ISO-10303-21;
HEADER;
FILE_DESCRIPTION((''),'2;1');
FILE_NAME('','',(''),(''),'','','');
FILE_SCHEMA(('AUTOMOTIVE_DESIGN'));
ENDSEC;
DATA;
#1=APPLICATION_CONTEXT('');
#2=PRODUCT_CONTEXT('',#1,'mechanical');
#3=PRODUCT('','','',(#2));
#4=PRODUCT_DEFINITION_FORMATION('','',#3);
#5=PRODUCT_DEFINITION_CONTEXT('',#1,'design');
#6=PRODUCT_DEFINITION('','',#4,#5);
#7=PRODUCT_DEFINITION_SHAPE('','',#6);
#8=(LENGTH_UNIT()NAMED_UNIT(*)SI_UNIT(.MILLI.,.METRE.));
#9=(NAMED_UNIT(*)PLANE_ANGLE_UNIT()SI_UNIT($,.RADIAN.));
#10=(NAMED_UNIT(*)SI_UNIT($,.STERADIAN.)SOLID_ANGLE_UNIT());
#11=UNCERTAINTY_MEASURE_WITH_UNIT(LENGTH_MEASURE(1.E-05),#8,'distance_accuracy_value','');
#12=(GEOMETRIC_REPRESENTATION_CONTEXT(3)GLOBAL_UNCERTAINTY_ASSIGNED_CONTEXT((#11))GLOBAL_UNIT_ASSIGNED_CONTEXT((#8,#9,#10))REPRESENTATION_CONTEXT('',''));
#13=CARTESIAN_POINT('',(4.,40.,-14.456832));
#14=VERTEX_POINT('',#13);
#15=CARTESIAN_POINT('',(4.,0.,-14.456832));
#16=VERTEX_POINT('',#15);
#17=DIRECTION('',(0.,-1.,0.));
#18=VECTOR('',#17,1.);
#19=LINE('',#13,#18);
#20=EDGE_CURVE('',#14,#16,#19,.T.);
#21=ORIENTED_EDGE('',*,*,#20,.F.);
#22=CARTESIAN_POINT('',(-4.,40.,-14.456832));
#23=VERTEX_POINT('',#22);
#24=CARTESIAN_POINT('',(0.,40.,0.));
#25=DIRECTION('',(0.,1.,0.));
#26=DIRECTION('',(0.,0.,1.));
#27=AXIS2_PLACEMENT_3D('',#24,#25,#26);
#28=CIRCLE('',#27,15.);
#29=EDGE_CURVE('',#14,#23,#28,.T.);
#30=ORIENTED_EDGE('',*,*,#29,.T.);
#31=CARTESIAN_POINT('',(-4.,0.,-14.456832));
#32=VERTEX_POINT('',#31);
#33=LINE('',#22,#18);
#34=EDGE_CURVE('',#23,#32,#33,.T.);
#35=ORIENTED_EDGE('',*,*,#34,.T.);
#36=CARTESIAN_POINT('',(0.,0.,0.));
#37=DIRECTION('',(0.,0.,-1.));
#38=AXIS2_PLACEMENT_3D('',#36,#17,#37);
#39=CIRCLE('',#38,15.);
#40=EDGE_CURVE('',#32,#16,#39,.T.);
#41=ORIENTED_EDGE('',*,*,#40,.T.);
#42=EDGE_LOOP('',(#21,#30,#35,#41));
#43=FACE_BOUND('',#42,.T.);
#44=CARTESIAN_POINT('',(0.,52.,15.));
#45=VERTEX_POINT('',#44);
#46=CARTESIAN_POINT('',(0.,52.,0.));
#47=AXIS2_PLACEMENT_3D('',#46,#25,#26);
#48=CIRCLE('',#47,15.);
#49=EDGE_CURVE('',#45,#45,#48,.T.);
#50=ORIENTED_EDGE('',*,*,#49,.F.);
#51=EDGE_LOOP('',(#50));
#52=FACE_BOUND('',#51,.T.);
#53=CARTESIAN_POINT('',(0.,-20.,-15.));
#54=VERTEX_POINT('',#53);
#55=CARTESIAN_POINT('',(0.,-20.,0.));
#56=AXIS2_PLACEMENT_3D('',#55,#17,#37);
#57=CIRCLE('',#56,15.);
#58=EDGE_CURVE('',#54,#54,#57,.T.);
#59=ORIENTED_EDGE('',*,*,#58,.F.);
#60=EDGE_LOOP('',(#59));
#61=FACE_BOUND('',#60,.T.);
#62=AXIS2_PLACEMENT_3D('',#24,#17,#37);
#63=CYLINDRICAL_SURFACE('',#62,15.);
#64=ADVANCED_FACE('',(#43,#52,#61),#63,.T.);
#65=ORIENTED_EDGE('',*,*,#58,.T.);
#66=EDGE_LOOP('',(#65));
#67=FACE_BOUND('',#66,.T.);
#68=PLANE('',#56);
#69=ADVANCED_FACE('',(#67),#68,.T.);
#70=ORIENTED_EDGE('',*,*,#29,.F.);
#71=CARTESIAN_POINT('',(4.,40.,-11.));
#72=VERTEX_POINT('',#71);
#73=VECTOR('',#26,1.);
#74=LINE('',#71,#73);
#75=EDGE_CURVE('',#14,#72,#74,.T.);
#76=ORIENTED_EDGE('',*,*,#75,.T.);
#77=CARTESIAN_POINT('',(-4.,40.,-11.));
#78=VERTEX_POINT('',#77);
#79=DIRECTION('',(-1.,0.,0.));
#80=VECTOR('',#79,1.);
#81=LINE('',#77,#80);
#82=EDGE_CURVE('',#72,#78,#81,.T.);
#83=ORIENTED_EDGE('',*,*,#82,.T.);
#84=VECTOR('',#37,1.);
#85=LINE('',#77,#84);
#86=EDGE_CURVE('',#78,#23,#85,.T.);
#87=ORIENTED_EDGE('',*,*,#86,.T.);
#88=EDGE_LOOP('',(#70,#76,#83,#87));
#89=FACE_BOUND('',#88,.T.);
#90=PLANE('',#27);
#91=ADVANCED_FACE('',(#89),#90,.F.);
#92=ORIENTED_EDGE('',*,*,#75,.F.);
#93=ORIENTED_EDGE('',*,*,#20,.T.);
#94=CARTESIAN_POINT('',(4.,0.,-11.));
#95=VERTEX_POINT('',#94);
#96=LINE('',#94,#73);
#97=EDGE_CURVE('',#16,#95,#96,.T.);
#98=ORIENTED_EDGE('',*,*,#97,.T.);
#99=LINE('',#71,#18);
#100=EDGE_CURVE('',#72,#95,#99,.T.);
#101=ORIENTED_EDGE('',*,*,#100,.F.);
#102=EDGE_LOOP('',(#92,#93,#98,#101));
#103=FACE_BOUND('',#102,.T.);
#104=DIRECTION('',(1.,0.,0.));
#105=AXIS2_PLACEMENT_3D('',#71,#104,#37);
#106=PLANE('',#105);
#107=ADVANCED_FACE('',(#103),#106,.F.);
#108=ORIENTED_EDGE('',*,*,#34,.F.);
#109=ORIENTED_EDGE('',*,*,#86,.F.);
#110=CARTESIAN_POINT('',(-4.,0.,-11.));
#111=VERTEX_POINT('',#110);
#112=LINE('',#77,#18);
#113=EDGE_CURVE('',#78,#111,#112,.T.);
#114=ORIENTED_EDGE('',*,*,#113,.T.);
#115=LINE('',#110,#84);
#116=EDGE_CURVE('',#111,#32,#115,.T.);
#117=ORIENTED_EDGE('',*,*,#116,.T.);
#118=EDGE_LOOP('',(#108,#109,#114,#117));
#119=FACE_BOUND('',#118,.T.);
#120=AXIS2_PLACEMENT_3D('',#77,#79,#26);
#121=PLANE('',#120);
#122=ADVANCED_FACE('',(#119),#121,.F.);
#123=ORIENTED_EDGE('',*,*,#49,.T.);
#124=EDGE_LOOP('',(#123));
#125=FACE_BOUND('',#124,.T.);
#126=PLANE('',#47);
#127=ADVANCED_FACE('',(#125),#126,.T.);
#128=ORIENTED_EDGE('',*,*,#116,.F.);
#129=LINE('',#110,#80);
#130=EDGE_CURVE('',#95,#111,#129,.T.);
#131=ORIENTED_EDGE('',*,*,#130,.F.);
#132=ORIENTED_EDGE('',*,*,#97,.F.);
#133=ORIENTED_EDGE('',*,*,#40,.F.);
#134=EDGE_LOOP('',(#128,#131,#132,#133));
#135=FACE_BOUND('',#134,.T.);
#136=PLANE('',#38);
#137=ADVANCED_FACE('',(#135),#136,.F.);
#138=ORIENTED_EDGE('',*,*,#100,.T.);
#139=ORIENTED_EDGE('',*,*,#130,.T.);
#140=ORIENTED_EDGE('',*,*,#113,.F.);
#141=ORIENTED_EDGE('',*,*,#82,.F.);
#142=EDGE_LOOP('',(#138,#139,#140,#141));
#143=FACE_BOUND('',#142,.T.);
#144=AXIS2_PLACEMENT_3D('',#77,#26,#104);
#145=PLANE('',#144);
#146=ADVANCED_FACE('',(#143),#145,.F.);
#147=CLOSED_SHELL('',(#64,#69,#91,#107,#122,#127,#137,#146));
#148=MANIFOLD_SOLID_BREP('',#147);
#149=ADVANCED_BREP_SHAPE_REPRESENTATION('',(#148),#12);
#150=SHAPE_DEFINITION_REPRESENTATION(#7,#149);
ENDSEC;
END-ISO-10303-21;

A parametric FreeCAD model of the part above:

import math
import FreeCAD as App
import Part
import Sketcher

V = App.Vector
Q = App.Units.Quantity

doc = App.newDocument("Part")
params = doc.addObject("Spreadsheet::Sheet", "Params")
for row, (alias, value) in enumerate([
    ("sketch1_radius", "15 mm"),
    ("sketch1_width", "8 mm"),
    ("pad1_length", "40 mm"),
    ("sketch2_diameter", "30 mm"),
    ("pad2_length", "12 mm"),
    ("sketch3_diameter", "30 mm"),
    ("pad3_length", "20 mm"),
], start=1):
    params.set(f"A{row}", alias)
    params.set(f"B{row}", "=" + value)
    params.setAlias(f"B{row}", alias)

body = doc.addObject("PartDesign::Body", "Body")

# Sketch on XZ plane
sketch1 = body.newObject("Sketcher::SketchObject", "Sketch")
sketch1.AttachmentSupport = (doc.getObject("XZ_Plane"), [""])
sketch1.MapMode = "FlatFace"
sketch1.addGeometry([
    Part.LineSegment(V(4, -11, 0), V(-4, -11, 0)),
    Part.LineSegment(V(-4, -11, 0), V(-4, -14.5, 0)),
    Part.ArcOfCircle(Part.Circle(V(0, 0, 0), V(0, 0, 1), 15), math.radians(-75), math.radians(255)),
    Part.LineSegment(V(4, -14.5, 0), V(4, -11, 0)),
], False)
sketch1.addConstraint([
    Sketcher.Constraint("Coincident", 0, 2, 1, 1),
    Sketcher.Constraint("Coincident", 1, 2, 2, 2),
    Sketcher.Constraint("Coincident", 2, 1, 3, 1),
    Sketcher.Constraint("Coincident", 3, 2, 0, 1),
    Sketcher.Constraint("Horizontal", 0),
    Sketcher.Constraint("Vertical", 1),
    Sketcher.Constraint("Vertical", 3),
    Sketcher.Constraint("Coincident", 2, 3, -1, 1),
    Sketcher.Constraint("Horizontal", 1, 2, 2, 1),
    Sketcher.Constraint("Radius", 2, Q("15 mm")),
    Sketcher.Constraint("DistanceX", 0, 2, 0, 1, Q("8 mm")),
    Sketcher.Constraint("DistanceY", 0, 2, -1, 1, Q("11 mm")),
])
sketch1.setExpression("Constraints[9]", "Params.sketch1_radius")
sketch1.setExpression("Constraints[10]", "Params.sketch1_width")
pad1 = body.newObject("PartDesign::Pad", "Pad")
pad1.Profile = sketch1
pad1.setExpression("Length", "Params.pad1_length")
pad1.Reversed = True

# Sketch on XZ plane
sketch2 = body.newObject("Sketcher::SketchObject", "Sketch001")
sketch2.AttachmentSupport = (doc.getObject("XZ_Plane"), [""])
sketch2.MapMode = "FlatFace"
sketch2.AttachmentOffset = App.Placement(V(0, 0, -40), App.Rotation())
sketch2.addGeometry(Part.Circle(V(0, 0, 0), V(0, 0, 1), 15), False)
sketch2.addConstraint([
    Sketcher.Constraint("Coincident", 0, 3, -1, 1),
    Sketcher.Constraint("Diameter", 0, Q("30 mm")),
])
sketch2.setExpression("Constraints[1]", "Params.sketch2_diameter")
pad2 = body.newObject("PartDesign::Pad", "Pad001")
pad2.Profile = sketch2
pad2.setExpression("Length", "Params.pad2_length")
pad2.Reversed = True

# Sketch on XZ plane
sketch3 = body.newObject("Sketcher::SketchObject", "Sketch002")
sketch3.AttachmentSupport = (doc.getObject("XZ_Plane"), [""])
sketch3.MapMode = "FlatFace"
sketch3.AttachmentOffset = App.Placement(V(0, 0, 20), App.Rotation())
sketch3.addGeometry(Part.Circle(V(0, 0, 0), V(0, 0, 1), 15), False)
sketch3.addConstraint([
    Sketcher.Constraint("Coincident", 0, 3, -1, 1),
    Sketcher.Constraint("Diameter", 0, Q("30 mm")),
])
sketch3.setExpression("Constraints[1]", "Params.sketch3_diameter")
pad3 = body.newObject("PartDesign::Pad", "Pad002")
pad3.Profile = sketch3
pad3.setExpression("Length", "Params.pad3_length")
pad3.Reversed = True

doc.recompute()
